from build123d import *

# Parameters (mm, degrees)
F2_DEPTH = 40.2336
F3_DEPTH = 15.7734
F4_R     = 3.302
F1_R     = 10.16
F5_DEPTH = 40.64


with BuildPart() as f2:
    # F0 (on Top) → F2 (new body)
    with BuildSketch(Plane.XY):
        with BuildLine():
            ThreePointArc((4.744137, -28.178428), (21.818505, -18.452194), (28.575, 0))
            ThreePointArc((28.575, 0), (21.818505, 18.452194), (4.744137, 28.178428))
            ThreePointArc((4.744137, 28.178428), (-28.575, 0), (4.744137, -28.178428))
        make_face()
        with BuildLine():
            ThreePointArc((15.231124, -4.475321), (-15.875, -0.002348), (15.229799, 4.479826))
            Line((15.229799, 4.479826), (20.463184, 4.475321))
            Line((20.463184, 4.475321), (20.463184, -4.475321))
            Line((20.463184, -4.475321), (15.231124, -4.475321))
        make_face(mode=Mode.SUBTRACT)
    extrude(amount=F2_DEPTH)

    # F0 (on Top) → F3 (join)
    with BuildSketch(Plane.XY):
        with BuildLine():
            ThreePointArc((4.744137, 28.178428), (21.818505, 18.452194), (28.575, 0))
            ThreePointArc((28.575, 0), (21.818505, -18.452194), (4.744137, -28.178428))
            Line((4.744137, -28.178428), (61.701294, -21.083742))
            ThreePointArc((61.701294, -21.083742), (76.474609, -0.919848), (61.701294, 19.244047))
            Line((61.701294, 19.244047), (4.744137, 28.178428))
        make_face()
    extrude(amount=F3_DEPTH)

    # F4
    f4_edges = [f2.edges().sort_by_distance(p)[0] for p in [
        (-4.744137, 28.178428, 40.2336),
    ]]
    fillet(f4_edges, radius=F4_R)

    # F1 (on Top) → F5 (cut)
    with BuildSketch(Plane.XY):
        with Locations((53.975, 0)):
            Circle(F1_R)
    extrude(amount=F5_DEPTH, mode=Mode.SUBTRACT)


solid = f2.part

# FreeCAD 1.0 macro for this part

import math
import FreeCAD as App
import Part
import Sketcher
from FreeCAD import Vector
Q = App.Units.Quantity


def edges_at(feature, points):
    """Names of the edges that pass closest to the given points."""
    edges = feature.Shape.Edges
    near = lambda p: min(range(len(edges)), key=lambda i: edges[i].distToShape(Part.Vertex(*p))[0])
    return sorted({f"Edge{near(p) + 1}" for p in points})

doc = App.newDocument("Part")
body = doc.addObject("PartDesign::Body", "Body")

sketch1 = body.newObject("Sketcher::SketchObject", "Sketch")
sketch1.AttachmentSupport = (doc.getObject("XY_Plane"), [""])
sketch1.MapMode = "FlatFace"
sketch1.addGeometry(Part.ArcOfCircle(Part.Circle(Vector(0, 0, 0), Vector(0, 0, 1), 29), math.radians(-80), math.radians(0)), False)
sketch1.addGeometry(Part.ArcOfCircle(Part.Circle(Vector(0, 0, 0), Vector(0, 0, 1), 29), math.radians(0), math.radians(80)), False)
sketch1.addGeometry(Part.ArcOfCircle(Part.Circle(Vector(0, 0, 0), Vector(0, 0, 1), 29), math.radians(80), math.radians(280)), False)
sketch1.addGeometry(Part.LineSegment(Vector(20, -4, 0), Vector(15, -4, 0)), False)
sketch1.addGeometry(Part.ArcOfCircle(Part.Circle(Vector(0, 0, 0), Vector(0, 0, 1), 16), math.radians(16), math.radians(344)), False)
sketch1.addGeometry(Part.LineSegment(Vector(15, 4, 0), Vector(20, 4, 0)), False)
sketch1.addGeometry(Part.LineSegment(Vector(20, 4, 0), Vector(20, -4, 0)), False)
sketch1.addConstraint(Sketcher.Constraint("Tangent", 0, 2, 1, 1))
sketch1.addConstraint(Sketcher.Constraint("Tangent", 1, 2, 2, 1))
sketch1.addConstraint(Sketcher.Constraint("Tangent", 2, 2, 0, 1))
sketch1.addConstraint(Sketcher.Constraint("Coincident", 3, 2, 4, 2))
sketch1.addConstraint(Sketcher.Constraint("Coincident", 4, 1, 5, 1))
sketch1.addConstraint(Sketcher.Constraint("Coincident", 5, 2, 6, 1))
sketch1.addConstraint(Sketcher.Constraint("Coincident", 6, 2, 3, 1))
sketch1.addConstraint(Sketcher.Constraint("Horizontal", 3))
sketch1.addConstraint(Sketcher.Constraint("Vertical", 6))
sketch1.addConstraint(Sketcher.Constraint("Coincident", 0, 3, -1, 1))
sketch1.addConstraint(Sketcher.Constraint("Coincident", 4, 3, -1, 1))
sketch1.addConstraint(Sketcher.Constraint("PointOnObject", 0, 2, -1))
sketch1.addConstraint(Sketcher.Constraint("Vertical", 1, 2, 2, 2))
sketch1.addConstraint(Sketcher.Constraint("Radius", 0, Q("1.125 in")))
sketch1.addConstraint(Sketcher.Constraint("Radius", 4, Q("0.625 in")))
sketch1.addConstraint(Sketcher.Constraint("DistanceX", 3, 2, 3, 1, Q("5.23206 mm")))
sketch1.addConstraint(Sketcher.Constraint("DistanceX", -1, 1, 4, 1, Q("15.229799 mm")))
sketch1.addConstraint(Sketcher.Constraint("DistanceY", 6, 2, 6, 1, Q("8.950642 mm")))
sketch1.addConstraint(Sketcher.Constraint("DistanceY", -1, 1, 1, 2, Q("28.178428 mm")))
sketch1.addConstraint(Sketcher.Constraint("DistanceY", 3, 2, -1, 1, Q("4.475321 mm")))
pad1 = body.newObject("PartDesign::Pad", "Pad")
pad1.Profile = sketch1
pad1.Length = Q("1.584 in")

sketch2 = body.newObject("Sketcher::SketchObject", "Sketch001")
sketch2.AttachmentSupport = (doc.getObject("XY_Plane"), [""])
sketch2.MapMode = "FlatFace"
sketch2.addGeometry(Part.ArcOfCircle(Part.Circle(Vector(0, 0, 0), Vector(0, 0, 1), 29), math.radians(0), math.radians(80)), False)
sketch2.addGeometry(Part.ArcOfCircle(Part.Circle(Vector(0, 0, 0), Vector(0, 0, 1), 29), math.radians(-80), math.radians(0)), False)
sketch2.addGeometry(Part.LineSegment(Vector(5, -28, 0), Vector(62, -21, 0)), False)
sketch2.addGeometry(Part.ArcOfCircle(Part.Circle(Vector(55, -1, 0), Vector(0, 0, 1), 21), math.radians(-72), math.radians(72)), False)
sketch2.addGeometry(Part.LineSegment(Vector(62, 19, 0), Vector(5, 28, 0)), False)
sketch2.addConstraint(Sketcher.Constraint("Tangent", 0, 1, 1, 2))
sketch2.addConstraint(Sketcher.Constraint("Coincident", 1, 1, 2, 1))
sketch2.addConstraint(Sketcher.Constraint("Coincident", 2, 2, 3, 1))
sketch2.addConstraint(Sketcher.Constraint("Coincident", 3, 2, 4, 1))
sketch2.addConstraint(Sketcher.Constraint("Coincident", 4, 2, 0, 2))
sketch2.addConstraint(Sketcher.Constraint("Coincident", 0, 3, -1, 1))
sketch2.addConstraint(Sketcher.Constraint("Equal", 0, 1))
sketch2.addConstraint(Sketcher.Constraint("PointOnObject", 0, 1, -1))
sketch2.addConstraint(Sketcher.Constraint("Vertical", 2, 2, 3, 2))
sketch2.addConstraint(Sketcher.Constraint("Vertical", 1, 1, 4, 2))
sketch2.addConstraint(Sketcher.Constraint("Radius", 0, Q("1.125 in")))
sketch2.addConstraint(Sketcher.Constraint("Radius", 3, Q("21.147369 mm")))
sketch2.addConstraint(Sketcher.Constraint("Distance", 2, Q("57.39732 mm")))
sketch2.addConstraint(Sketcher.Constraint("Distance", 4, Q("57.653629 mm")))
sketch2.addConstraint(Sketcher.Constraint("DistanceX", -1, 1, 3, 3, Q("55.32724 mm")))
sketch2.addConstraint(Sketcher.Constraint("DistanceY", 1, 1, -1, 1, Q("28.178428 mm")))
pad2 = body.newObject("PartDesign::Pad", "Pad001")
pad2.Profile = sketch2
pad2.Length = Q("0.621 in")
doc.recompute()

fillet = body.newObject("PartDesign::Fillet", "Fillet")
fillet.Base = (pad2, edges_at(pad2, [(-28.575, 0, 40.234)]))
fillet.Radius = Q("0.13 in")

sketch3 = body.newObject("Sketcher::SketchObject", "Sketch002")
sketch3.AttachmentSupport = (doc.getObject("XY_Plane"), [""])
sketch3.MapMode = "FlatFace"
sketch3.addGeometry(Part.Circle(Vector(54, 0, 0), Vector(0, 0, 1), 10), False)
sketch3.addConstraint(Sketcher.Constraint("PointOnObject", 0, 3, -1))
sketch3.addConstraint(Sketcher.Constraint("Diameter", 0, Q("0.8 in")))
sketch3.addConstraint(Sketcher.Constraint("DistanceX", -1, 1, 0, 3, Q("2.125 in")))
pocket1 = body.newObject("PartDesign::Pocket", "Pocket")
pocket1.Profile = sketch3
pocket1.Length = Q("1.6 in")
pocket1.Reversed = True

doc.recompute()
